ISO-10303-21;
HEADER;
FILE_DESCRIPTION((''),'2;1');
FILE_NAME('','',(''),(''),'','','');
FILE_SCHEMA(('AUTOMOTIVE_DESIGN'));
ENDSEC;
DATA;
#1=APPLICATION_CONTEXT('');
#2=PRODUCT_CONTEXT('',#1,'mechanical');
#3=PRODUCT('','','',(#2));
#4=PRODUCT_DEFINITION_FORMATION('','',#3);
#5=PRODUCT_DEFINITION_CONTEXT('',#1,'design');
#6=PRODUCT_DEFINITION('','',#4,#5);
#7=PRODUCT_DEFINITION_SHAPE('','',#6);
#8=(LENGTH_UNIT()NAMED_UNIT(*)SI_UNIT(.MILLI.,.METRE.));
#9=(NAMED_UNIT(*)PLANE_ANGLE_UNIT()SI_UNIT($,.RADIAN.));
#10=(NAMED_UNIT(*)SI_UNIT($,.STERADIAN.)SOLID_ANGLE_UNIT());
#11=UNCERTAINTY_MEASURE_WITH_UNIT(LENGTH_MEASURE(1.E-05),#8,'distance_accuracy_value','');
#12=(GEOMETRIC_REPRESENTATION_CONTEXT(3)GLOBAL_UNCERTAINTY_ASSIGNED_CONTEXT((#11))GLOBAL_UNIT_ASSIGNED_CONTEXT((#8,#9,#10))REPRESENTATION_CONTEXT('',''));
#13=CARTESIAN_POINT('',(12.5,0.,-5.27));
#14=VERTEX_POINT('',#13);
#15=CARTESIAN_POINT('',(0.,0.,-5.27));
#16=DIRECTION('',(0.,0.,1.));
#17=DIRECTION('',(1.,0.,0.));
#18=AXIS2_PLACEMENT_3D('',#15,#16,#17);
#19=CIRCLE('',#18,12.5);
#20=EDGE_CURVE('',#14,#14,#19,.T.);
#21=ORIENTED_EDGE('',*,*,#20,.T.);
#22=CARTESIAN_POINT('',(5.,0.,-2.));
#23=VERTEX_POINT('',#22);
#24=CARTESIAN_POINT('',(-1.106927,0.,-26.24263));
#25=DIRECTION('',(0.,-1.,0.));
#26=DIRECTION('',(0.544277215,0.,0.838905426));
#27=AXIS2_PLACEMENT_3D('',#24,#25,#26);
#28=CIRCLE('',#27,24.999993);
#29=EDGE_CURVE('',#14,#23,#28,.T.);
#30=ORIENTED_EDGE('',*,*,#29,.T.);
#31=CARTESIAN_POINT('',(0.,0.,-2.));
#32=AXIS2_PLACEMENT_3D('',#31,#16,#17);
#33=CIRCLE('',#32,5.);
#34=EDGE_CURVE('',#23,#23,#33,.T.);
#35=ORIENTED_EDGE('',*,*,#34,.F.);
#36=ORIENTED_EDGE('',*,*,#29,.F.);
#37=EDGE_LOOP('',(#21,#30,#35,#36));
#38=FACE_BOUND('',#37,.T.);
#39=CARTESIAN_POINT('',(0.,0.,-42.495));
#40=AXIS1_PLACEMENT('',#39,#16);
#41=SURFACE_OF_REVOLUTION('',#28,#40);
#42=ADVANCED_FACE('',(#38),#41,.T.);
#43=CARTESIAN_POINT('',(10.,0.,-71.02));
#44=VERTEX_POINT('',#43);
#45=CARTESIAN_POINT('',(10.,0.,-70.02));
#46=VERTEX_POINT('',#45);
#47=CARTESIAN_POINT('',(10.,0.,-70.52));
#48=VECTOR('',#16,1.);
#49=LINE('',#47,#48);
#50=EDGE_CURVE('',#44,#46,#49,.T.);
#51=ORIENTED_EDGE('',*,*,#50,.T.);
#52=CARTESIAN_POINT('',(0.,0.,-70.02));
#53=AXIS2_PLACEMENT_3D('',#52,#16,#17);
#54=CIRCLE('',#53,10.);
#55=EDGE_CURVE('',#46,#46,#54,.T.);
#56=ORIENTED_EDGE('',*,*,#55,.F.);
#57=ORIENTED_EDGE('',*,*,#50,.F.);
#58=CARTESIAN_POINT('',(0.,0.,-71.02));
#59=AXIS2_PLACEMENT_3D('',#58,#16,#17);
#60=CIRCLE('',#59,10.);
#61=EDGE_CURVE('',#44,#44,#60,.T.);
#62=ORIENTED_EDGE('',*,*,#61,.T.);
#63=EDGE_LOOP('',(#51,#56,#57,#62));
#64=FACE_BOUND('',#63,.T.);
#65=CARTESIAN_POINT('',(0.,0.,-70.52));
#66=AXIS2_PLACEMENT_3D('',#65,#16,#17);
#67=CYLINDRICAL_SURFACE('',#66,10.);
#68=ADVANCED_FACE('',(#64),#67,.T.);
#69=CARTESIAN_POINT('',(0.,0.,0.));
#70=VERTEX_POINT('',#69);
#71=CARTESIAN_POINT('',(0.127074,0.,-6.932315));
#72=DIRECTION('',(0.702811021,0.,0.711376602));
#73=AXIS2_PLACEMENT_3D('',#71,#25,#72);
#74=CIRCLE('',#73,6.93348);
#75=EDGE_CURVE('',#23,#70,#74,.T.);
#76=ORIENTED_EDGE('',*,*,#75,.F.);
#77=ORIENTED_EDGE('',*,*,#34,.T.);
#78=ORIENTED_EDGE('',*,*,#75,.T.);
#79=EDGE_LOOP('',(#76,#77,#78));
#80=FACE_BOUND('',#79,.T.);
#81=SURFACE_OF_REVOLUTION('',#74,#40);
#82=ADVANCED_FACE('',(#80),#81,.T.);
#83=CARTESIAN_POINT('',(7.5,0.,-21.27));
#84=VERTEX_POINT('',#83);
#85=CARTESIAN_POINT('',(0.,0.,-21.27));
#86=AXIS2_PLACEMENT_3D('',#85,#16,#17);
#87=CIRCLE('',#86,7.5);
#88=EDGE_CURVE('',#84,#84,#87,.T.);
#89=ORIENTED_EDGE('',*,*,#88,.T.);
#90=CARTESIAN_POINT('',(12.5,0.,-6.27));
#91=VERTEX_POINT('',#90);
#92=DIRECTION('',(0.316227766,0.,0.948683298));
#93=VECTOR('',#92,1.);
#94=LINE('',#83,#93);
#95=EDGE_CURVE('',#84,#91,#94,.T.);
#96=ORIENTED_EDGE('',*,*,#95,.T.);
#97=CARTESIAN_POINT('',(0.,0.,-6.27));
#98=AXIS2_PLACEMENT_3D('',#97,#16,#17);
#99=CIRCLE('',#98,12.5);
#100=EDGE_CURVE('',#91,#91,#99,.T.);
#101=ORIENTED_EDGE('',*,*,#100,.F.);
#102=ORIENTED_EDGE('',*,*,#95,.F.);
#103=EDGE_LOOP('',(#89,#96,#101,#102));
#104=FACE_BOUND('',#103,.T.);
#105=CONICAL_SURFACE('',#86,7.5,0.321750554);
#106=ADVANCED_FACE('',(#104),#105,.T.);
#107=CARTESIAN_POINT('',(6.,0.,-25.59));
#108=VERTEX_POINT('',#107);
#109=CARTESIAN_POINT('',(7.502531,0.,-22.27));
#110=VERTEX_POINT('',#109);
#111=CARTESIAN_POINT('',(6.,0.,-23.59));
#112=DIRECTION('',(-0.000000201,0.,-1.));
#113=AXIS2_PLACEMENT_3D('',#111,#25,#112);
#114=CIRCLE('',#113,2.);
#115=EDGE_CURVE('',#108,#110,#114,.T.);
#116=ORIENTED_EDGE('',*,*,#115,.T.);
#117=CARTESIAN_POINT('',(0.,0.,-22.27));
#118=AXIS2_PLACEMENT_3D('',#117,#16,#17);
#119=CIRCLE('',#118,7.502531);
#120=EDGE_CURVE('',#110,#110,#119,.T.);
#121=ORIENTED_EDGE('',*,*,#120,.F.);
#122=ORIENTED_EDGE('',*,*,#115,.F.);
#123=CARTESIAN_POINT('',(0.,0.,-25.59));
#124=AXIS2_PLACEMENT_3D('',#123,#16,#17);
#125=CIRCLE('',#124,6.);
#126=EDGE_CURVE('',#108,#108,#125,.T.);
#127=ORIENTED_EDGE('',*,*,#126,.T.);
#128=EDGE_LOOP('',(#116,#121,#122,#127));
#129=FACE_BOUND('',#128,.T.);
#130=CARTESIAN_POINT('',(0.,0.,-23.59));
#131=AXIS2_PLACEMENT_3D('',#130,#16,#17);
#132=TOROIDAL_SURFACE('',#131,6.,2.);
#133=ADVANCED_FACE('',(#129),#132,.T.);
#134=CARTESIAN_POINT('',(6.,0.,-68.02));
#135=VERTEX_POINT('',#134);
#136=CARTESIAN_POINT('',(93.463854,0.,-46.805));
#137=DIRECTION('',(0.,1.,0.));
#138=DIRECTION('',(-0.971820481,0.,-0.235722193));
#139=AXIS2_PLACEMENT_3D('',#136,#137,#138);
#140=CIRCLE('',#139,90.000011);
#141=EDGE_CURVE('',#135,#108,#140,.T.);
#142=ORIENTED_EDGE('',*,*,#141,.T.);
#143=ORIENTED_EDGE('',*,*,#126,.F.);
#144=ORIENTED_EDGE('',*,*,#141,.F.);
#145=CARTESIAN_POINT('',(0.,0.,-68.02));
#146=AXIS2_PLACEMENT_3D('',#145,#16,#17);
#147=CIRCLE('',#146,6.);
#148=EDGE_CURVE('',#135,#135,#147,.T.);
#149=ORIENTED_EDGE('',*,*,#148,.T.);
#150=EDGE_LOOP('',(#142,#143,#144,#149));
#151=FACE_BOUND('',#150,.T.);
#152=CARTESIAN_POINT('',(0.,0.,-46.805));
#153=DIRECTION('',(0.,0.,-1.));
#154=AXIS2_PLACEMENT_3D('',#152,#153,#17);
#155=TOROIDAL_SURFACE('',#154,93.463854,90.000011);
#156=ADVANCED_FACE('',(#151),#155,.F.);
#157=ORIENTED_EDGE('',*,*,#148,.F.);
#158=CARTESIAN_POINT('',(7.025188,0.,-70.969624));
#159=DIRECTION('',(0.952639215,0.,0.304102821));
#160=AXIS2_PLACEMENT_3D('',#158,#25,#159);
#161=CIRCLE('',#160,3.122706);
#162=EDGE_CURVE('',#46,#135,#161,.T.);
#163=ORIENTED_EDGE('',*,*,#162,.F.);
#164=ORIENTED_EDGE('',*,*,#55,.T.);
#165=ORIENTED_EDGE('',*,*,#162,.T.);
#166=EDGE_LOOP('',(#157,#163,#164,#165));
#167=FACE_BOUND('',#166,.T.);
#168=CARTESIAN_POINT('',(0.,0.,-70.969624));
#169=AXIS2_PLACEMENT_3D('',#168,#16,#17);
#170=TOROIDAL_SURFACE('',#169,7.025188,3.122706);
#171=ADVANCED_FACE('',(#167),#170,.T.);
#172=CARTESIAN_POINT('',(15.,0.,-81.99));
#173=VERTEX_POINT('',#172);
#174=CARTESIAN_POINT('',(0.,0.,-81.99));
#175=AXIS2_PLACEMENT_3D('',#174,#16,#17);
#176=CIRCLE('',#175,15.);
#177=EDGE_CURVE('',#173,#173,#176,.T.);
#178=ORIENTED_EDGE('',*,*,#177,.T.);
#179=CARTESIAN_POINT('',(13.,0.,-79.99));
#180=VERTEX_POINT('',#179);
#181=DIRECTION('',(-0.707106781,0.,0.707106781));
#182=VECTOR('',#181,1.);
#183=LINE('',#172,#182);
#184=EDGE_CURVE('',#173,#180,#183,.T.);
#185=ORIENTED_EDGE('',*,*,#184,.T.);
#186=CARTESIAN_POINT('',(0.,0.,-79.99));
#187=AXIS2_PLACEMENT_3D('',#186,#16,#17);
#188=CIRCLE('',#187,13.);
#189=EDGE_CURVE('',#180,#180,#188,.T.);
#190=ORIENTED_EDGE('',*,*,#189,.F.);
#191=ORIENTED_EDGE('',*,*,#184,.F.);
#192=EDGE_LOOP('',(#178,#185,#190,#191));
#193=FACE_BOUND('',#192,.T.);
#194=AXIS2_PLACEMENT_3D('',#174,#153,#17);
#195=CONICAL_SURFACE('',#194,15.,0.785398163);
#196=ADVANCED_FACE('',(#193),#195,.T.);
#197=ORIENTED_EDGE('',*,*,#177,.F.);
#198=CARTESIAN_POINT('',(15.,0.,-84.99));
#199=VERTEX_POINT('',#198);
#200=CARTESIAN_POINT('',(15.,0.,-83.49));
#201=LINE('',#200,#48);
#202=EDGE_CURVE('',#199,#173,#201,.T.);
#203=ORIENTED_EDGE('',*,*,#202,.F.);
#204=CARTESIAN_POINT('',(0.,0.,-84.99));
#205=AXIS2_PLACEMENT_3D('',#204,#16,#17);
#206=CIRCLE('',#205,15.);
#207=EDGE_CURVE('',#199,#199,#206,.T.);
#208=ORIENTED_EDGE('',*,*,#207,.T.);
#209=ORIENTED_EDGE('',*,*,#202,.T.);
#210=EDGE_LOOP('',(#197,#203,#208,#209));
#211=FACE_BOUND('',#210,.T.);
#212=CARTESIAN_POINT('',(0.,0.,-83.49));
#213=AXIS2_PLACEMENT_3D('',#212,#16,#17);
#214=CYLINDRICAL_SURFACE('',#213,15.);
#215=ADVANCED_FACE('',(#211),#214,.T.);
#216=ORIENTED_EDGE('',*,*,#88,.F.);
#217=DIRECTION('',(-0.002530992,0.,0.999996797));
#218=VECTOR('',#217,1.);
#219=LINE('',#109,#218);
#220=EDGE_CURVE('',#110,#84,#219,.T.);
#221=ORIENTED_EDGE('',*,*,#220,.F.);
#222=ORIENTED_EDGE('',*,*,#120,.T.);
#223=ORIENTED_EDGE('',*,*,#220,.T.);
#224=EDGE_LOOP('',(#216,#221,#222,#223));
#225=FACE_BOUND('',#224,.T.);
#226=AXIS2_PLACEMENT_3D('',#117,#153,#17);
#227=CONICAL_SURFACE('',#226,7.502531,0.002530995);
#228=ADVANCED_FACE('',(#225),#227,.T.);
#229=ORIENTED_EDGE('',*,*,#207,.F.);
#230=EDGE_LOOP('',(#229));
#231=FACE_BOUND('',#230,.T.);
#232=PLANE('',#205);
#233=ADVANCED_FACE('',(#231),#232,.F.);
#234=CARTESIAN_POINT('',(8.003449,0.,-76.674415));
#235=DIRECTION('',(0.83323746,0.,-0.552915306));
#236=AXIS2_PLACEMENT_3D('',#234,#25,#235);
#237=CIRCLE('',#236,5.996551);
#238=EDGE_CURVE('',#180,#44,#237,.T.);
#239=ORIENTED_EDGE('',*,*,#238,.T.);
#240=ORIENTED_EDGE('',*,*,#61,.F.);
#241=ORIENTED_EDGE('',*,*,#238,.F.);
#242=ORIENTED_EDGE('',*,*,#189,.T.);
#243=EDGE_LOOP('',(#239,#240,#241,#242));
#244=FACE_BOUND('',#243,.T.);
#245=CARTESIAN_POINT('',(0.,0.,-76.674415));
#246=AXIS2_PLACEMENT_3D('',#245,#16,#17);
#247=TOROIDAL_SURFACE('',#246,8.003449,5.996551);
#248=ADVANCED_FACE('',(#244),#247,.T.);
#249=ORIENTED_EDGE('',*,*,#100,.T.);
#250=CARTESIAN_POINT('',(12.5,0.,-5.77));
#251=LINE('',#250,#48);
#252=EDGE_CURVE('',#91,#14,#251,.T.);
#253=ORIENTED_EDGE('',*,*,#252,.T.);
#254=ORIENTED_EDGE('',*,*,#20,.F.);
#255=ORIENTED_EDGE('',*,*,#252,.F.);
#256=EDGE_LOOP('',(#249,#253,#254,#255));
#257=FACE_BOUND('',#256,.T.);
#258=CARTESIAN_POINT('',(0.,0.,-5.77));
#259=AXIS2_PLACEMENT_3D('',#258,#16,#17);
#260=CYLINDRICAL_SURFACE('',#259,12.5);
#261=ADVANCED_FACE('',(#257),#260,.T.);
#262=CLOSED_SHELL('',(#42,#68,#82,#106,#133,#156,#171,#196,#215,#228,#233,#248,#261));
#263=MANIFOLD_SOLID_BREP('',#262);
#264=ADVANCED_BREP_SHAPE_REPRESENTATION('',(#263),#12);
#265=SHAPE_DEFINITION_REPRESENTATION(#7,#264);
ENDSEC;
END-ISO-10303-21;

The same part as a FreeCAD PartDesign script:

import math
import FreeCAD as App
import Part
import Sketcher

V = App.Vector
Q = App.Units.Quantity

doc = App.newDocument("Part")
body = doc.addObject("PartDesign::Body", "Body")

# Sketch on XZ plane
sketch1 = body.newObject("Sketcher::SketchObject", "Sketch")
sketch1.AttachmentSupport = (doc.getObject("XZ_Plane"), [""])
sketch1.MapMode = "FlatFace"
sketch1.addGeometry(Part.ArcOfCircle(Part.Circle(V(-1.106927, -26.24263, 0), V(0, 0, 1), 24.999993), math.radians(57.024715), math.radians(75.860882)), False)
sketch1.addGeometry(Part.ArcOfCircle(Part.Circle(V(0.127074, -6.932315, 0), V(0, 0, 1), 6.93348), math.radians(45.34703), math.radians(91.050151)), False)
sketch1.addGeometry(Part.LineSegment(V(0, 0, 0), V(0, -84.99, 0)), False)
sketch1.addGeometry(Part.LineSegment(V(0, -84.99, 0), V(15, -84.99, 0)), False)
sketch1.addGeometry(Part.LineSegment(V(15, -84.99, 0), V(15, -81.99, 0)), False)
sketch1.addGeometry(Part.LineSegment(V(15, -81.99, 0), V(13, -79.99, 0)), False)
sketch1.addGeometry(Part.ArcOfCircle(Part.Circle(V(8.003449, -76.674415, 0), V(0, 0, 1), 5.996551), math.radians(-33.567246), math.radians(70.55208)), False)
sketch1.addGeometry(Part.LineSegment(V(10, -71.02, 0), V(10, -70.02, 0)), False)
sketch1.addGeometry(Part.ArcOfCircle(Part.Circle(V(7.025188, -70.969624, 0), V(0, 0, 1), 3.122706), math.radians(17.704196), math.radians(109.165702)), False)
sketch1.addGeometry(Part.ArcOfCircle(Part.Circle(V(93.463854, -46.805, 0), V(0, 0, 1), 90.000011), math.radians(166.365803), math.radians(193.634197)), False)
sketch1.addGeometry(Part.ArcOfCircle(Part.Circle(V(6, -23.59, 0), V(0, 0, 1), 2), math.radians(-90.000012), math.radians(41.29989)), False)
sketch1.addGeometry(Part.LineSegment(V(7.502531, -22.27, 0), V(7.5, -21.27, 0)), False)
sketch1.addGeometry(Part.LineSegment(V(7.5, -21.27, 0), V(12.5, -6.27, 0)), False)
sketch1.addGeometry(Part.LineSegment(V(12.5, -6.27, 0), V(12.5, -5.27, 0)), False)
sketch1.addConstraint(Sketcher.Constraint("Coincident", 0, 2, 1, 1))
sketch1.addConstraint(Sketcher.Constraint("Coincident", 1, 2, 2, 1))
sketch1.addConstraint(Sketcher.Constraint("Coincident", 2, 2, 3, 1))
sketch1.addConstraint(Sketcher.Constraint("Coincident", 3, 2, 4, 1))
sketch1.addConstraint(Sketcher.Constraint("Coincident", 4, 2, 5, 1))
sketch1.addConstraint(Sketcher.Constraint("Coincident", 5, 2, 6, 1))
sketch1.addConstraint(Sketcher.Constraint("Coincident", 6, 2, 7, 1))
sketch1.addConstraint(Sketcher.Constraint("Coincident", 7, 2, 8, 1))
sketch1.addConstraint(Sketcher.Constraint("Coincident", 8, 2, 9, 2))
sketch1.addConstraint(Sketcher.Constraint("Coincident", 9, 1, 10, 1))
sketch1.addConstraint(Sketcher.Constraint("Coincident", 10, 2, 11, 1))
sketch1.addConstraint(Sketcher.Constraint("Coincident", 11, 2, 12, 1))
sketch1.addConstraint(Sketcher.Constraint("Coincident", 12, 2, 13, 1))
sketch1.addConstraint(Sketcher.Constraint("Coincident", 13, 2, 0, 1))
sketch1.addConstraint(Sketcher.Constraint("Vertical", 2))
sketch1.addConstraint(Sketcher.Constraint("Horizontal", 3))
sketch1.addConstraint(Sketcher.Constraint("Vertical", 4))
sketch1.addConstraint(Sketcher.Constraint("Vertical", 7))
sketch1.addConstraint(Sketcher.Constraint("Vertical", 13))
sketch1.addConstraint(Sketcher.Constraint("Coincident", 1, 2, -1, 1))
sketch1.addConstraint(Sketcher.Constraint("Vertical", 10, 3, 8, 2))
sketch1.addConstraint(Sketcher.Constraint("Vertical", 8, 2, 9, 1))
sketch1.addConstraint(Sketcher.Constraint("Equal", 7, 13))
sketch1.addConstraint(Sketcher.Constraint("Radius", 10, Q("2 mm")))
sketch1.addConstraint(Sketcher.Constraint("DistanceX", 3, 1, 3, 2, Q("15 mm")))
sketch1.addConstraint(Sketcher.Constraint("DistanceY", 4, 1, 4, 2, Q("3 mm")))
sketch1.addConstraint(Sketcher.Constraint("DistanceY", 7, 1, 7, 2, Q("1 mm")))
sketch1.addConstraint(Sketcher.Constraint("Angle", 5, Q("135 deg")))
sketch1.addConstraint(Sketcher.Constraint("DistanceX", -1, 1, 10, 3, Q("6 mm")))
sketch1.addConstraint(Sketcher.Constraint("DistanceX", -1, 1, 0, 2, Q("5 mm")))
sketch1.addConstraint(Sketcher.Constraint("DistanceY", 0, 2, -1, 1, Q("2 mm")))
sketch1.addConstraint(Sketcher.Constraint("DistanceX", -1, 1, 5, 2, Q("13 mm")))
sketch1.addConstraint(Sketcher.Constraint("DistanceX", -1, 1, 6, 2, Q("10 mm")))
sketch1.addConstraint(Sketcher.Constraint("DistanceY", 7, 2, 8, 2, Q("2 mm")))
sketch1.addConstraint(Sketcher.Constraint("DistanceY", 10, 2, 11, 2, Q("1 mm")))
sketch1.addConstraint(Sketcher.Constraint("DistanceX", 11, 2, 12, 2, Q("5 mm")))
sketch1.addConstraint(Sketcher.Constraint("DistanceY", 11, 2, 12, 2, Q("15 mm")))
sketch1.addConstraint(Sketcher.Constraint("DistanceY", 2, 2, 2, 1, Q("84.99 mm")))
sketch1.addConstraint(Sketcher.Constraint("DistanceX", -1, 1, 11, 2, Q("7.5 mm")))
sketch1.addConstraint(Sketcher.Constraint("DistanceY", 2, 2, 10, 3, Q("61.4 mm")))
sketch1.addConstraint(Sketcher.Constraint("DistanceY", 6, 2, -1, 1, Q("71.02 mm")))
sketch1.addConstraint(Sketcher.Constraint("DistanceY", 10, 2, -1, 1, Q("22.27 mm")))
sketch1.addConstraint(Sketcher.Constraint("Radius", 1, Q("6.93348 mm")))
sketch1.addConstraint(Sketcher.Constraint("Radius", 6, Q("5.996551 mm")))
sketch1.addConstraint(Sketcher.Constraint("Radius", 9, Q("90.000011 mm")))
sketch1.addConstraint(Sketcher.Constraint("Radius", 0, Q("24.999993 mm")))
sketch1.addConstraint(Sketcher.Constraint("Radius", 8, Q("3.122706 mm")))
revolution = body.newObject("PartDesign::Revolution", "Revolution")
revolution.Profile = sketch1
revolution.ReferenceAxis = (sketch1, ["V_Axis"])
revolution.Angle = 360

doc.recompute()
